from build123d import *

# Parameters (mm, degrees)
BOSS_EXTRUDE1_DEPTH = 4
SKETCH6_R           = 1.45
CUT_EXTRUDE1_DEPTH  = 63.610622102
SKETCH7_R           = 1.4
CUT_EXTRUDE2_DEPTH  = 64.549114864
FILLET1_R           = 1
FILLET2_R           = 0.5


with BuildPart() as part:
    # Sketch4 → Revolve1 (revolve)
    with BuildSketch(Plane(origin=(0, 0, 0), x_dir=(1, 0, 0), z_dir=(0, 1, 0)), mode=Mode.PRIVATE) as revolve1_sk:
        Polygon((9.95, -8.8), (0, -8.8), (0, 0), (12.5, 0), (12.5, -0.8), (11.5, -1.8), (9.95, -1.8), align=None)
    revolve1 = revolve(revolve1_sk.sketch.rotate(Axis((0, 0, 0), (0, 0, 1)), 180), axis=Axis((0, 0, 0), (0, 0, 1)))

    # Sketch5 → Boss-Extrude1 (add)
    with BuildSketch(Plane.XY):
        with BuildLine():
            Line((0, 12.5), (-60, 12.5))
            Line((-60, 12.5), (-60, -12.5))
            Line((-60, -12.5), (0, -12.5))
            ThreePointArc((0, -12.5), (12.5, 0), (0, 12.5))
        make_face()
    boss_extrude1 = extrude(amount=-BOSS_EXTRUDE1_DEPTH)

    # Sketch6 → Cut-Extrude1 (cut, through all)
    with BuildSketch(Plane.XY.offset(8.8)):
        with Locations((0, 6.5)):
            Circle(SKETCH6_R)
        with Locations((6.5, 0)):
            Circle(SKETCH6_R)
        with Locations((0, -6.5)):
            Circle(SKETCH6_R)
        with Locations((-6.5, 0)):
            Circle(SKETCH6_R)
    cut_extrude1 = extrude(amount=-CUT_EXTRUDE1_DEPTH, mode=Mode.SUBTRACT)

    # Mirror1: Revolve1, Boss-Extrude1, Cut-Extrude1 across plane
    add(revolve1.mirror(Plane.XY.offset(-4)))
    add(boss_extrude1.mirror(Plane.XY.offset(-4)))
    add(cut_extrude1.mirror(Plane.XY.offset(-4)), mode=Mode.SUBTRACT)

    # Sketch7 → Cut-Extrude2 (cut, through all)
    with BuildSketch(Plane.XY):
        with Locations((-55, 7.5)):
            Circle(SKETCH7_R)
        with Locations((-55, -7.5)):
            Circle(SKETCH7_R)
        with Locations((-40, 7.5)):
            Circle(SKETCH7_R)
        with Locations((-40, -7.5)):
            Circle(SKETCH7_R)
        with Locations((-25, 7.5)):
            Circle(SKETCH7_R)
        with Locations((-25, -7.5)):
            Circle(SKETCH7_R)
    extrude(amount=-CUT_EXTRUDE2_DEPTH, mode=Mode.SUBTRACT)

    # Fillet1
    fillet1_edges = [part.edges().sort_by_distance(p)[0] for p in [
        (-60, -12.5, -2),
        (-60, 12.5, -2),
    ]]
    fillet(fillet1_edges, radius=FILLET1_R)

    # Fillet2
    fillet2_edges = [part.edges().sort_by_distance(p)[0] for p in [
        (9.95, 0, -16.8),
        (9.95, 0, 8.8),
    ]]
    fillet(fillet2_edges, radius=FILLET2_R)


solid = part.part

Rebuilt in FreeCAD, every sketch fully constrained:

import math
import FreeCAD as App
import Part
import Sketcher
from FreeCAD import Vector
Q = App.Units.Quantity


def edges_at(feature, points):
    """Names of the edges that pass closest to the given points."""
    edges = feature.Shape.Edges
    near = lambda p: min(range(len(edges)), key=lambda i: edges[i].distToShape(Part.Vertex(*p))[0])
    return sorted({f"Edge{near(p) + 1}" for p in points})

doc = App.newDocument("Part")
body = doc.addObject("PartDesign::Body", "Body")

# Sketch on XZ plane
sketch1 = body.newObject("Sketcher::SketchObject", "Sketch")
sketch1.AttachmentSupport = (doc.getObject("XZ_Plane"), [""])
sketch1.MapMode = "FlatFace"
sketch1.addGeometry(Part.LineSegment(Vector(0, 8.8, 0), Vector(9.9, 8.8, 0)), False)
sketch1.addGeometry(Part.LineSegment(Vector(9.9, 8.8, 0), Vector(9.9, 1.8, 0)), False)
sketch1.addGeometry(Part.LineSegment(Vector(9.9, 1.8, 0), Vector(11.5, 1.8, 0)), False)
sketch1.addGeometry(Part.LineSegment(Vector(11.5, 1.8, 0), Vector(12.5, 0.8, 0)), False)
sketch1.addGeometry(Part.LineSegment(Vector(12.5, 0.8, 0), Vector(12.5, 0, 0)), False)
sketch1.addGeometry(Part.LineSegment(Vector(12.5, 0, 0), Vector(0, 0, 0)), False)
sketch1.addGeometry(Part.LineSegment(Vector(0, 0, 0), Vector(0, 8.8, 0)), False)
sketch1.addConstraint(Sketcher.Constraint("Coincident", 0, 2, 1, 1))
sketch1.addConstraint(Sketcher.Constraint("Coincident", 1, 2, 2, 1))
sketch1.addConstraint(Sketcher.Constraint("Coincident", 2, 2, 3, 1))
sketch1.addConstraint(Sketcher.Constraint("Coincident", 3, 2, 4, 1))
sketch1.addConstraint(Sketcher.Constraint("Coincident", 4, 2, 5, 1))
sketch1.addConstraint(Sketcher.Constraint("Coincident", 5, 2, 6, 1))
sketch1.addConstraint(Sketcher.Constraint("Coincident", 6, 2, 0, 1))
sketch1.addConstraint(Sketcher.Constraint("Horizontal", 0))
sketch1.addConstraint(Sketcher.Constraint("Vertical", 1))
sketch1.addConstraint(Sketcher.Constraint("Horizontal", 2))
sketch1.addConstraint(Sketcher.Constraint("Vertical", 4))
sketch1.addConstraint(Sketcher.Constraint("Horizontal", 5))
sketch1.addConstraint(Sketcher.Constraint("Vertical", 6))
sketch1.addConstraint(Sketcher.Constraint("Coincident", 5, 2, -1, 1))
sketch1.addConstraint(Sketcher.Constraint("DistanceY", 1, 2, 1, 1, 7.0))
sketch1.addConstraint(Sketcher.Constraint("Angle", 3, Q("-45 deg")))
sketch1.addConstraint(Sketcher.Constraint("DistanceX", 5, 2, 5, 1, 12.5))
sketch1.addConstraint(Sketcher.Constraint("DistanceY", 4, 2, 4, 1, 0.8))
sketch1.addConstraint(Sketcher.Constraint("DistanceY", 6, 1, 6, 2, 8.8))
sketch1.addConstraint(Sketcher.Constraint("DistanceX", 0, 1, 0, 2, 9.95))
revolution = body.newObject("PartDesign::Revolution", "Revolution")
revolution.Profile = sketch1
revolution.ReferenceAxis = (sketch1, ["V_Axis"])
revolution.Angle = 360

# Sketch on XY plane
sketch2 = body.newObject("Sketcher::SketchObject", "Sketch001")
sketch2.AttachmentSupport = (doc.getObject("XY_Plane"), [""])
sketch2.MapMode = "FlatFace"
sketch2.addGeometry(Part.LineSegment(Vector(0, 12, 0), Vector(-60, 12, 0)), False)
sketch2.addGeometry(Part.LineSegment(Vector(-60, 12, 0), Vector(-60, -12, 0)), False)
sketch2.addGeometry(Part.LineSegment(Vector(-60, -12, 0), Vector(0, -12, 0)), False)
sketch2.addGeometry(Part.ArcOfCircle(Part.Circle(Vector(0, 0, 0), Vector(0, 0, 1), 12), math.radians(-90), math.radians(90)), False)
sketch2.addConstraint(Sketcher.Constraint("Coincident", 0, 2, 1, 1))
sketch2.addConstraint(Sketcher.Constraint("Coincident", 1, 2, 2, 1))
sketch2.addConstraint(Sketcher.Constraint("Tangent", 2, 2, 3, 1))
sketch2.addConstraint(Sketcher.Constraint("Tangent", 3, 2, 0, 1))
sketch2.addConstraint(Sketcher.Constraint("Horizontal", 0))
sketch2.addConstraint(Sketcher.Constraint("Vertical", 1))
sketch2.addConstraint(Sketcher.Constraint("Horizontal", 2))
sketch2.addConstraint(Sketcher.Constraint("Coincident", 3, 3, -1, 1))
sketch2.addConstraint(Sketcher.Constraint("Radius", 3, 12.5))
sketch2.addConstraint(Sketcher.Constraint("DistanceX", 0, 2, 0, 1, 60.0))
pad1 = body.newObject("PartDesign::Pad", "Pad")
pad1.Profile = sketch2
pad1.Length = 4
pad1.Reversed = True

# Sketch on XY plane
sketch3 = body.newObject("Sketcher::SketchObject", "Sketch002")
sketch3.AttachmentSupport = (doc.getObject("XY_Plane"), [""])
sketch3.MapMode = "FlatFace"
sketch3.AttachmentOffset = App.Placement(Vector(0, 0, 8.8), App.Rotation())
sketch3.addGeometry(Part.Circle(Vector(0, 6.5, 0), Vector(0, 0, 1), 1.4), False)
sketch3.addGeometry(Part.Circle(Vector(6.5, 0, 0), Vector(0, 0, 1), 1.4), False)
sketch3.addGeometry(Part.Circle(Vector(0, -6.5, 0), Vector(0, 0, 1), 1.4), False)
sketch3.addGeometry(Part.Circle(Vector(-6.5, 0, 0), Vector(0, 0, 1), 1.4), False)
sketch3.addConstraint(Sketcher.Constraint("Equal", 0, 1))
sketch3.addConstraint(Sketcher.Constraint("Equal", 1, 2))
sketch3.addConstraint(Sketcher.Constraint("Equal", 2, 3))
sketch3.addConstraint(Sketcher.Constraint("Symmetric", 0, 3, 2, 3, -1, 1))
sketch3.addConstraint(Sketcher.Constraint("Symmetric", 1, 3, 3, 3, -1, 1))
sketch3.addConstraint(Sketcher.Constraint("PointOnObject", 0, 3, -2))
sketch3.addConstraint(Sketcher.Constraint("PointOnObject", 1, 3, -1))
sketch3.addConstraint(Sketcher.Constraint("Diameter", 0, 2.9))
sketch3.addConstraint(Sketcher.Constraint("DistanceY", 2, 3, 0, 3, 13.0))
sketch3.addConstraint(Sketcher.Constraint("DistanceX", 3, 3, 1, 3, 13.0))
pocket1 = body.newObject("PartDesign::Pocket", "Pocket")
pocket1.Profile = sketch3
pocket1.Type = "ThroughAll"
doc.recompute()

datumplane = body.newObject("PartDesign::Plane", "DatumPlane")
datumplane.AttachmentSupport = (doc.getObject("XY_Plane"), [""])
datumplane.MapMode = "FlatFace"
datumplane.AttachmentOffset = App.Placement(Vector(0, 0, -4), App.Rotation())
mirrored = body.newObject("PartDesign::Mirrored", "Mirrored")
mirrored.Originals = [revolution, pad1, pocket1]
mirrored.MirrorPlane = (datumplane, [""])
body.Tip = mirrored

# Sketch on XY plane
sketch4 = body.newObject("Sketcher::SketchObject", "Sketch003")
sketch4.AttachmentSupport = (doc.getObject("XY_Plane"), [""])
sketch4.MapMode = "FlatFace"
sketch4.addGeometry(Part.Circle(Vector(-55, 7.5, 0), Vector(0, 0, 1), 1.4), False)
sketch4.addGeometry(Part.Circle(Vector(-55, -7.5, 0), Vector(0, 0, 1), 1.4), False)
sketch4.addGeometry(Part.Circle(Vector(-40, 7.5, 0), Vector(0, 0, 1), 1.4), False)
sketch4.addGeometry(Part.Circle(Vector(-40, -7.5, 0), Vector(0, 0, 1), 1.4), False)
sketch4.addGeometry(Part.Circle(Vector(-25, 7.5, 0), Vector(0, 0, 1), 1.4), False)
sketch4.addGeometry(Part.Circle(Vector(-25, -7.5, 0), Vector(0, 0, 1), 1.4), False)
sketch4.addConstraint(Sketcher.Constraint("Equal", 0, 1))
sketch4.addConstraint(Sketcher.Constraint("Equal", 1, 2))
sketch4.addConstraint(Sketcher.Constraint("Equal", 2, 3))
sketch4.addConstraint(Sketcher.Constraint("Equal", 3, 4))
sketch4.addConstraint(Sketcher.Constraint("Equal", 4, 5))
sketch4.addConstraint(Sketcher.Constraint("Symmetric", 0, 3, 1, 3, -1))
sketch4.addConstraint(Sketcher.Constraint("Symmetric", 2, 3, 3, 3, -1))
sketch4.addConstraint(Sketcher.Constraint("Symmetric", 4, 3, 5, 3, -1))
sketch4.addConstraint(Sketcher.Constraint("Horizontal", 0, 3, 2, 3))
sketch4.addConstraint(Sketcher.Constraint("Horizontal", 2, 3, 4, 3))
sketch4.addConstraint(Sketcher.Constraint("Diameter", 0, 2.8))
sketch4.addConstraint(Sketcher.Constraint("DistanceX", 0, 3, -1, 1, 55.0))
sketch4.addConstraint(Sketcher.Constraint("DistanceX", 2, 3, -1, 1, 40.0))
sketch4.addConstraint(Sketcher.Constraint("DistanceX", 4, 3, -1, 1, 25.0))
sketch4.addConstraint(Sketcher.Constraint("DistanceY", 1, 3, 0, 3, 15.0))
pocket2 = body.newObject("PartDesign::Pocket", "Pocket001")
pocket2.Profile = sketch4
pocket2.Type = "ThroughAll"
doc.recompute()

fillet = body.newObject("PartDesign::Fillet", "Fillet")
fillet.Base = (pocket2, edges_at(pocket2, [(-60, -12.5, -4), (-60, 12.5, -4)]))
fillet.Radius = 1
doc.recompute()

fillet2 = body.newObject("PartDesign::Fillet", "Fillet001")
fillet2.Base = (fillet, edges_at(fillet, [(9.95, 0, -16.8), (9.95, 0, 8.8)]))
fillet2.Radius = 0.5

doc.recompute()
